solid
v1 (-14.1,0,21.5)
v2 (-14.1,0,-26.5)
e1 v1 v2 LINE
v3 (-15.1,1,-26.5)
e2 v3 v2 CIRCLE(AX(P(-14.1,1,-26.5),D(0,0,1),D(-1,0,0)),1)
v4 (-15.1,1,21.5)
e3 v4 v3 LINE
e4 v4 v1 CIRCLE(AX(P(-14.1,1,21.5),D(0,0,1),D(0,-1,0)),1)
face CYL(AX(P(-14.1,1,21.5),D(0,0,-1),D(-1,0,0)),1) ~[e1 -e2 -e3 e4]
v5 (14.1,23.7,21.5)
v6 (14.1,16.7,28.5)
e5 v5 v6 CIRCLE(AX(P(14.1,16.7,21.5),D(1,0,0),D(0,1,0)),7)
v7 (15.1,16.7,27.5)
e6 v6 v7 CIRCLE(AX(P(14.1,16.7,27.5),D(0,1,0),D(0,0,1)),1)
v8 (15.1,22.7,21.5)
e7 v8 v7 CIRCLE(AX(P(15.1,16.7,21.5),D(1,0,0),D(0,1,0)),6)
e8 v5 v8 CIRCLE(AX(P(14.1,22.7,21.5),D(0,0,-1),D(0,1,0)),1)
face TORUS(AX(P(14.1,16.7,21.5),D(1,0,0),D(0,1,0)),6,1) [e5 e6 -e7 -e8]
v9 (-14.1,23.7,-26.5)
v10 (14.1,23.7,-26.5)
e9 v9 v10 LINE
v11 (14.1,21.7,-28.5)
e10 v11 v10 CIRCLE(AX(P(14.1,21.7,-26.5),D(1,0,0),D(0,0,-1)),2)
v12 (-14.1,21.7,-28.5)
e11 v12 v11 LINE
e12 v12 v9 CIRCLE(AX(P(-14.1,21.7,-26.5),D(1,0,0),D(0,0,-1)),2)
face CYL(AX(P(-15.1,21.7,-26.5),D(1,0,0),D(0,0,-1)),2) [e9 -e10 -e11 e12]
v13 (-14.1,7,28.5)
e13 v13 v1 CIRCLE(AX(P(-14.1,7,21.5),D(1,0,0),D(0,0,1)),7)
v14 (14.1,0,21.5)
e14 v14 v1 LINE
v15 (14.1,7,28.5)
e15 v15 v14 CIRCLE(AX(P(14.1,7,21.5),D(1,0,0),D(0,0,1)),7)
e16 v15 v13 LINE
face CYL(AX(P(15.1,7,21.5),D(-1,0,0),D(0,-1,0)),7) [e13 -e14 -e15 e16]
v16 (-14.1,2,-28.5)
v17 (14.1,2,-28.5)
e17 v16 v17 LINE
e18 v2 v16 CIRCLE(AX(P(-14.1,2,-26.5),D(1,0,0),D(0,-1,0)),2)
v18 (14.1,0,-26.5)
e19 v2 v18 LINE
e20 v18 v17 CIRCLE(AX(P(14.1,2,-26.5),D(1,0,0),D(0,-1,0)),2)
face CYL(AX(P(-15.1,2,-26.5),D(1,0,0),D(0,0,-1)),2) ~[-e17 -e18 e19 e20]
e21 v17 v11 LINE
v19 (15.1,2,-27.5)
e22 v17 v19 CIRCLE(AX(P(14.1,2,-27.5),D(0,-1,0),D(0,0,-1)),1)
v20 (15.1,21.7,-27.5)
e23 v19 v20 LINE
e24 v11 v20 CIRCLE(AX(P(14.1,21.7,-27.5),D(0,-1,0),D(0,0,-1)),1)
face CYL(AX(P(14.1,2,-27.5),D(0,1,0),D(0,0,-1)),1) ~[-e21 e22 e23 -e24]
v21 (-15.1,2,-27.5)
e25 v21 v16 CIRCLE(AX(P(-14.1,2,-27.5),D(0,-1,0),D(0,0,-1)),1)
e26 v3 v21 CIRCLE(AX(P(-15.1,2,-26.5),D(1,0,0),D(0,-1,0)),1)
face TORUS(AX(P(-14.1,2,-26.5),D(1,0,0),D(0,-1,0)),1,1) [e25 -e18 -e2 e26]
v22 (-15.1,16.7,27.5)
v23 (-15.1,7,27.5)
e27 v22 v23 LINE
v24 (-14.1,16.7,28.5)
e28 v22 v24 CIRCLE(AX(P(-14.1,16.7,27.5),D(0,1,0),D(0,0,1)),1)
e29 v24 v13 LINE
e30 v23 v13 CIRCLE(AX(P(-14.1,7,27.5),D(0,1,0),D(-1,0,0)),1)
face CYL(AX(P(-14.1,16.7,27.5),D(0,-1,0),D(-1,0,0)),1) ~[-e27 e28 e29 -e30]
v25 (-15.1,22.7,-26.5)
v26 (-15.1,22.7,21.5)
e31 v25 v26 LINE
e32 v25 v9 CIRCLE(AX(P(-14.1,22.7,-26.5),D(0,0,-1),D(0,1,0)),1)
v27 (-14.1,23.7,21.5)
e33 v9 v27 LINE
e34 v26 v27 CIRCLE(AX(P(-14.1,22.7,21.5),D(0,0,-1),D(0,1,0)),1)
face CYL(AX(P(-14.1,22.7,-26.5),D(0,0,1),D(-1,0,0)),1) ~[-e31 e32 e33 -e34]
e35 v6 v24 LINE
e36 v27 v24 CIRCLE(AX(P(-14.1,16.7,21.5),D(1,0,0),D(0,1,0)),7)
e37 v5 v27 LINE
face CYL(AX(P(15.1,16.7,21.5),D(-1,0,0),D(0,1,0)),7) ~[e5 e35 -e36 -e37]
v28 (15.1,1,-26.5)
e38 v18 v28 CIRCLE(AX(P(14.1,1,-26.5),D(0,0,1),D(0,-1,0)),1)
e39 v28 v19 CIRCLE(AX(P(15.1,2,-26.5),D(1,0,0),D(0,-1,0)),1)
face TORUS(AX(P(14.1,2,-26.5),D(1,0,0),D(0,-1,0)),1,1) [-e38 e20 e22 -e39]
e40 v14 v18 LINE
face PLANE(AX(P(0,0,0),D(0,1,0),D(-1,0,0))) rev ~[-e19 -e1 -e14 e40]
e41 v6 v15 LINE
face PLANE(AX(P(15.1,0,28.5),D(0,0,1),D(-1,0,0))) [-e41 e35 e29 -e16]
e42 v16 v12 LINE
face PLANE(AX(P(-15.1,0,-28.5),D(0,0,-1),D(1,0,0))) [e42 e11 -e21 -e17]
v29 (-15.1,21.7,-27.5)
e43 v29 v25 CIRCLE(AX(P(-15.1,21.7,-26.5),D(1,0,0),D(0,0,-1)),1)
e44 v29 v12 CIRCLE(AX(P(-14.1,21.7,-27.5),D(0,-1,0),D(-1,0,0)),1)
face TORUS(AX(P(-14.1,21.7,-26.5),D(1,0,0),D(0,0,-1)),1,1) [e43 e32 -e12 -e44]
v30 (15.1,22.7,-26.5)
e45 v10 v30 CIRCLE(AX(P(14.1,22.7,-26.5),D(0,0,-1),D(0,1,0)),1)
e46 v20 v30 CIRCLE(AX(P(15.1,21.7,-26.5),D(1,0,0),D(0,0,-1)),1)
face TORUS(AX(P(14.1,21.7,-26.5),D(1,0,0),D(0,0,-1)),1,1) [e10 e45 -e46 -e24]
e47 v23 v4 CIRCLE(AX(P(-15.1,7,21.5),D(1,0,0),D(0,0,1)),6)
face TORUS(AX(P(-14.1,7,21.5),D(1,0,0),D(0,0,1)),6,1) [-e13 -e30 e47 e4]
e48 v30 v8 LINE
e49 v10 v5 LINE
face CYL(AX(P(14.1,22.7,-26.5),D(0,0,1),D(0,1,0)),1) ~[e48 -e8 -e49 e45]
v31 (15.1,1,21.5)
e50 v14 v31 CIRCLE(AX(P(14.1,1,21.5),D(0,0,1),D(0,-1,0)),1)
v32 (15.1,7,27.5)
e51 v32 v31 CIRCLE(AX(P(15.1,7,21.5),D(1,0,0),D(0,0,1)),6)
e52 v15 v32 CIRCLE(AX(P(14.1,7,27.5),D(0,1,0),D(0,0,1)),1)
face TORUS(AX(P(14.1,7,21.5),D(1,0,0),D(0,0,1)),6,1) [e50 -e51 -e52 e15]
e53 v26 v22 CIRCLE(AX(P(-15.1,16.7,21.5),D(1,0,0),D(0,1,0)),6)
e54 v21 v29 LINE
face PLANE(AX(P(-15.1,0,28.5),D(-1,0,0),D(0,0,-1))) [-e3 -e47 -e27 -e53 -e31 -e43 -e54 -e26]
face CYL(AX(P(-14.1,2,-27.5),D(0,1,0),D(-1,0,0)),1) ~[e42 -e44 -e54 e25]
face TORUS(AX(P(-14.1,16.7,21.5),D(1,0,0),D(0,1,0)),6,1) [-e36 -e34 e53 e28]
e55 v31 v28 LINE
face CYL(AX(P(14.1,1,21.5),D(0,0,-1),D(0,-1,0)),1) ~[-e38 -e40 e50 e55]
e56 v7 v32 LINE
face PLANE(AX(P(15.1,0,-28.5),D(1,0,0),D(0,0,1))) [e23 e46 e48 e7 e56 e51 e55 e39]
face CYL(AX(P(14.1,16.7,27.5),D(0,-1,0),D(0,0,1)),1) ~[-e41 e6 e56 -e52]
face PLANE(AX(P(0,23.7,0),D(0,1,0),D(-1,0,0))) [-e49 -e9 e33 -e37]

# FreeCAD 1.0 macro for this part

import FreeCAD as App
import Part
import Sketcher
from FreeCAD import Vector


def edges_at(feature, points):
    """Names of the edges that pass closest to the given points."""
    edges = feature.Shape.Edges
    near = lambda p: min(range(len(edges)), key=lambda i: edges[i].distToShape(Part.Vertex(*p))[0])
    return sorted({f"Edge{near(p) + 1}" for p in points})


def add_polygon(sketch, points):
    """Adds a closed chain of lines whose ends are joined by coincident constraints."""
    first, n = sketch.GeometryCount, len(points)
    for a, b in zip(points, points[1:] + points[:1]):
        sketch.addGeometry(Part.LineSegment(App.Vector(*a, 0), App.Vector(*b, 0)), False)
    for i in range(n):
        sketch.addConstraint(Sketcher.Constraint("Coincident", first + i, 2, first + (i + 1) % n, 1))

doc = App.newDocument("Part")
params = doc.addObject("Spreadsheet::Sheet", "Params")
for row, (alias, value) in enumerate([
    ("sketch1_height", "57 mm"),
    ("sketch1_width", "30.2 mm"),
    ("pad1_length", "23.7 mm"),
    ("fillet_radius", "2 mm"),
    ("fillet2_radius", "7 mm"),
    ("fillet3_radius", "1 mm"),
], start=1):
    params.set(f"A{row}", alias)
    params.set(f"B{row}", "=" + value)
    params.setAlias(f"B{row}", alias)

body = doc.addObject("PartDesign::Body", "Body")

# Sketch on XZ plane
sketch1 = doc.addObject("Sketcher::SketchObject", "Sketch")
body.addObject(sketch1)
sketch1.AttachmentSupport = (doc.XZ_Plane, [""])
sketch1.MapMode = "FlatFace"
add_polygon(sketch1, [(15, -28), (-15, -28), (-15, 28), (15, 28)])  # lines 0-3
sketch1.addConstraint(Sketcher.Constraint("Horizontal", 0))
sketch1.addConstraint(Sketcher.Constraint("Vertical", 1))
sketch1.addConstraint(Sketcher.Constraint("Horizontal", 2))
sketch1.addConstraint(Sketcher.Constraint("Vertical", 3))
sketch1.addConstraint(Sketcher.Constraint("Symmetric", 0, 2, 2, 2, -1, 1))
sketch1.addConstraint(Sketcher.Constraint("DistanceY", 1, 1, 1, 2, 57.0))
sketch1.addConstraint(Sketcher.Constraint("DistanceX", 0, 2, 0, 1, 30.2))
sketch1.setExpression("Constraints[9]", "Params.sketch1_height")
sketch1.setExpression("Constraints[10]", "Params.sketch1_width")
pad1 = doc.addObject("PartDesign::Pad", "Pad")
body.addObject(pad1)
pad1.Profile = sketch1
pad1.setExpression("Length", "Params.pad1_length")
pad1.Reversed = True
doc.recompute()

fillet = doc.addObject("PartDesign::Fillet", "Fillet")
body.addObject(fillet)
fillet.Base = (pad1, edges_at(pad1, [(0, 23.7, -28.5), (0, 0, -28.5)]))
fillet.setExpression("Radius", "Params.fillet_radius")
doc.recompute()

fillet2 = doc.addObject("PartDesign::Fillet", "Fillet001")
body.addObject(fillet2)
fillet2.Base = (fillet, edges_at(fillet, [(0, 23.7, 28.5), (0, 0, 28.5)]))
fillet2.setExpression("Radius", "Params.fillet2_radius")
doc.recompute()

fillet3 = doc.addObject("PartDesign::Fillet", "Fillet002")
body.addObject(fillet3)
fillet3.Base = (fillet2, edges_at(fillet2, [
    (15.1, 23.7, -2.5),
    (15.1, 23.114, -27.914),
    (15.1, 11.85, -28.5),
    (15.1, 0.586, -27.914),
    (15.1, 0, -2.5),
    (15.1, 2.05, 26.45),
    (15.1, 11.85, 28.5),
    (15.1, 21.65, 26.45),
    (-15.1, 21.65, 26.45),
    (-15.1, 11.85, 28.5),
    (-15.1, 2.05, 26.45),
    (-15.1, 0, -2.5),
    (-15.1, 0.586, -27.914),
    (-15.1, 11.85, -28.5),
    (-15.1, 23.114, -27.914),
    (-15.1, 23.7, -2.5),
]))
fillet3.setExpression("Radius", "Params.fillet3_radius")

doc.recompute()
